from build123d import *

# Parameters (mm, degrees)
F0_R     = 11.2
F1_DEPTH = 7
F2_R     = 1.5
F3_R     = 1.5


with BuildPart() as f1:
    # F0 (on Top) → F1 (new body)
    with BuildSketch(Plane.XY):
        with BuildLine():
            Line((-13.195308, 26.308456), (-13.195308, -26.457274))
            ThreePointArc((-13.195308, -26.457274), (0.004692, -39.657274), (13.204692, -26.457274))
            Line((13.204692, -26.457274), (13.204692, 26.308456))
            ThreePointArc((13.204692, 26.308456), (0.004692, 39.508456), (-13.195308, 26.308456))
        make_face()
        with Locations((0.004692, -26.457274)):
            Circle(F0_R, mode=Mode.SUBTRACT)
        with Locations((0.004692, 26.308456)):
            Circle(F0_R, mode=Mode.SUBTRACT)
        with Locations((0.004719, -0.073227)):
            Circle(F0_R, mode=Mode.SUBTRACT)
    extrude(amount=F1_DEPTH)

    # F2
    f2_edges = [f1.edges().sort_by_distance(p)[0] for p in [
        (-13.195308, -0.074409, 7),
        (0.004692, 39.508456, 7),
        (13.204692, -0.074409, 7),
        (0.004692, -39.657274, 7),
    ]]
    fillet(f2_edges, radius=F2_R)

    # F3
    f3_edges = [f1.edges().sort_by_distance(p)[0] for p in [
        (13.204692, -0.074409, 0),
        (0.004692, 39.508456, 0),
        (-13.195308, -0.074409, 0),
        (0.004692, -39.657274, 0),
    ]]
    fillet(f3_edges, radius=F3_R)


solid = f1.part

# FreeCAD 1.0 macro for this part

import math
import FreeCAD as App
import Part
import Sketcher
from FreeCAD import Vector


def edges_at(feature, points):
    """Names of the edges that pass closest to the given points."""
    edges = feature.Shape.Edges
    near = lambda p: min(range(len(edges)), key=lambda i: edges[i].distToShape(Part.Vertex(*p))[0])
    return sorted({f"Edge{near(p) + 1}" for p in points})

doc = App.newDocument("Part")
body = doc.addObject("PartDesign::Body", "Body")

# Sketch on XY plane
sketch1 = doc.addObject("Sketcher::SketchObject", "Sketch")
body.addObject(sketch1)
sketch1.AttachmentSupport = (doc.XY_Plane, [""])
sketch1.MapMode = "FlatFace"
sketch1.addGeometry(Part.LineSegment(Vector(-13.195308, 26.308456, 0), Vector(-13.195308, -26.457274, 0)), False)
sketch1.addGeometry(Part.ArcOfCircle(Part.Circle(Vector(0.004692, -26.457274, 0), Vector(0, 0, 1), 13.2), math.radians(180), math.radians(360)), False)
sketch1.addGeometry(Part.LineSegment(Vector(13.204692, -26.457274, 0), Vector(13.204692, 26.308456, 0)), False)
sketch1.addGeometry(Part.ArcOfCircle(Part.Circle(Vector(0.004692, 26.308456, 0), Vector(0, 0, 1), 13.2), math.radians(0), math.radians(180)), False)
sketch1.addGeometry(Part.Circle(Vector(0.004692, -26.457274, 0), Vector(0, 0, 1), 11.2), False)
sketch1.addGeometry(Part.Circle(Vector(0.004692, 26.308456, 0), Vector(0, 0, 1), 11.2), False)
sketch1.addGeometry(Part.Circle(Vector(0.004719, -0.073227, 0), Vector(0, 0, 1), 11.2), False)
sketch1.addConstraint(Sketcher.Constraint("Tangent", 0, 2, 1, 1))
sketch1.addConstraint(Sketcher.Constraint("Tangent", 1, 2, 2, 1))
sketch1.addConstraint(Sketcher.Constraint("Tangent", 2, 2, 3, 1))
sketch1.addConstraint(Sketcher.Constraint("Tangent", 3, 2, 0, 1))
sketch1.addConstraint(Sketcher.Constraint("Vertical", 0))
sketch1.addConstraint(Sketcher.Constraint("Vertical", 2))
sketch1.addConstraint(Sketcher.Constraint("Coincident", 4, 3, 1, 3))
sketch1.addConstraint(Sketcher.Constraint("Coincident", 5, 3, 3, 3))
sketch1.addConstraint(Sketcher.Constraint("Equal", 4, 5))
sketch1.addConstraint(Sketcher.Constraint("Equal", 5, 6))
sketch1.addConstraint(Sketcher.Constraint("Diameter", 4, 22.4))
sketch1.addConstraint(Sketcher.Constraint("Radius", 1, 13.2))
sketch1.addConstraint(Sketcher.Constraint("DistanceY", 0, 2, 0, 1, 52.76573))
sketch1.addConstraint(Sketcher.Constraint("DistanceX", -1, 1, 6, 3, 0.004719))
sketch1.addConstraint(Sketcher.Constraint("DistanceX", 0, 2, -1, 1, 13.195308))
sketch1.addConstraint(Sketcher.Constraint("DistanceY", 1, 3, -1, 1, 26.457274))
sketch1.addConstraint(Sketcher.Constraint("DistanceY", 6, 3, -1, 1, 0.073227))
pad1 = doc.addObject("PartDesign::Pad", "Pad")
body.addObject(pad1)
pad1.Profile = sketch1
pad1.Length = 7
doc.recompute()

fillet = doc.addObject("PartDesign::Fillet", "Fillet")
body.addObject(fillet)
fillet.Base = (pad1, edges_at(pad1, [
    (-13.195, -0.074, 7),
    (0.005, 39.508, 7),
    (13.205, -0.074, 7),
    (0.005, -39.657, 7),
]))
fillet.Radius = 1.5
doc.recompute()

fillet2 = doc.addObject("PartDesign::Fillet", "Fillet001")
body.addObject(fillet2)
fillet2.Base = (fillet, edges_at(fillet, [
    (13.205, -0.074, 0),
    (0.005, 39.508, 0),
    (-13.195, -0.074, 0),
    (0.005, -39.657, 0),
]))
fillet2.Radius = 1.5

doc.recompute()
